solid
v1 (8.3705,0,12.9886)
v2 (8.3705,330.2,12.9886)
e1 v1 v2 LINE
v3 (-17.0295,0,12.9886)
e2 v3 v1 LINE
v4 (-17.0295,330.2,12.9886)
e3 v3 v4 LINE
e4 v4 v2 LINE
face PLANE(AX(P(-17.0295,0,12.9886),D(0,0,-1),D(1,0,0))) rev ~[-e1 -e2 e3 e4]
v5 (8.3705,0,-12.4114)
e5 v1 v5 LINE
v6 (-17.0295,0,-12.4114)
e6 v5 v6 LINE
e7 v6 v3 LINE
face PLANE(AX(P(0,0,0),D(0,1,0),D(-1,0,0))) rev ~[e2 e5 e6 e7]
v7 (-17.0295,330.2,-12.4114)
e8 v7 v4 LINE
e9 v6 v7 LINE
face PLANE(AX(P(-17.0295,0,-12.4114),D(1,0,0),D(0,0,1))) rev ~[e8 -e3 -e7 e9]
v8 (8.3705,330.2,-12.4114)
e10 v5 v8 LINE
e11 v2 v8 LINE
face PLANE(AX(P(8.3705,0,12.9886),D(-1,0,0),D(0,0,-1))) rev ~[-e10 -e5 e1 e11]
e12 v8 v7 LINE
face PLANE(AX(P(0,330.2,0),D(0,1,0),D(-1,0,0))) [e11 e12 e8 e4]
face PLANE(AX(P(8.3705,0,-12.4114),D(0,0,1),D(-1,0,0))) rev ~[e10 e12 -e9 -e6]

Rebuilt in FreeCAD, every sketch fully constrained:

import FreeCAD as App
import Part
import Sketcher
Q = App.Units.Quantity


def add_polygon(sketch, points):
    """Adds a closed chain of lines whose ends are joined by coincident constraints."""
    first, n = sketch.GeometryCount, len(points)
    for a, b in zip(points, points[1:] + points[:1]):
        sketch.addGeometry(Part.LineSegment(App.Vector(*a, 0), App.Vector(*b, 0)), False)
    for i in range(n):
        sketch.addConstraint(Sketcher.Constraint("Coincident", first + i, 2, first + (i + 1) % n, 1))

doc = App.newDocument("Part")
params = doc.addObject("Spreadsheet::Sheet", "Params")
for row, (alias, value) in enumerate([
    ("sketch1_width", "1 in"),
    ("pad1_length", "13 in"),
], start=1):
    params.set(f"A{row}", alias)
    params.set(f"B{row}", "=" + value)
    params.setAlias(f"B{row}", alias)

body = doc.addObject("PartDesign::Body", "Body")

sketch1 = doc.addObject("Sketcher::SketchObject", "Sketch")
body.addObject(sketch1)
sketch1.AttachmentSupport = (doc.XZ_Plane, [""])
sketch1.MapMode = "FlatFace"
add_polygon(sketch1, [(-17.0295, -12.4114), (-17.0295, 12.9886), (8.3705, 12.9886), (8.3705, -12.4114)])
sketch1.addConstraint(Sketcher.Constraint("Vertical", 0))
sketch1.addConstraint(Sketcher.Constraint("Horizontal", 1))
sketch1.addConstraint(Sketcher.Constraint("Vertical", 2))
sketch1.addConstraint(Sketcher.Constraint("Horizontal", 3))
sketch1.addConstraint(Sketcher.Constraint("Equal", 3, 0))
sketch1.addConstraint(Sketcher.Constraint("DistanceX", 1, 1, 1, 2, Q("1 in")))
sketch1.addConstraint(Sketcher.Constraint("DistanceX", 0, 2, -1, 1, 17.0295))
sketch1.addConstraint(Sketcher.Constraint("DistanceY", -1, 1, 0, 2, 12.9886))
sketch1.setExpression("Constraints[9]", "Params.sketch1_width")
pad1 = doc.addObject("PartDesign::Pad", "Pad")
body.addObject(pad1)
pad1.Profile = sketch1
pad1.setExpression("Length", "Params.pad1_length")
pad1.Reversed = True

doc.recompute()
